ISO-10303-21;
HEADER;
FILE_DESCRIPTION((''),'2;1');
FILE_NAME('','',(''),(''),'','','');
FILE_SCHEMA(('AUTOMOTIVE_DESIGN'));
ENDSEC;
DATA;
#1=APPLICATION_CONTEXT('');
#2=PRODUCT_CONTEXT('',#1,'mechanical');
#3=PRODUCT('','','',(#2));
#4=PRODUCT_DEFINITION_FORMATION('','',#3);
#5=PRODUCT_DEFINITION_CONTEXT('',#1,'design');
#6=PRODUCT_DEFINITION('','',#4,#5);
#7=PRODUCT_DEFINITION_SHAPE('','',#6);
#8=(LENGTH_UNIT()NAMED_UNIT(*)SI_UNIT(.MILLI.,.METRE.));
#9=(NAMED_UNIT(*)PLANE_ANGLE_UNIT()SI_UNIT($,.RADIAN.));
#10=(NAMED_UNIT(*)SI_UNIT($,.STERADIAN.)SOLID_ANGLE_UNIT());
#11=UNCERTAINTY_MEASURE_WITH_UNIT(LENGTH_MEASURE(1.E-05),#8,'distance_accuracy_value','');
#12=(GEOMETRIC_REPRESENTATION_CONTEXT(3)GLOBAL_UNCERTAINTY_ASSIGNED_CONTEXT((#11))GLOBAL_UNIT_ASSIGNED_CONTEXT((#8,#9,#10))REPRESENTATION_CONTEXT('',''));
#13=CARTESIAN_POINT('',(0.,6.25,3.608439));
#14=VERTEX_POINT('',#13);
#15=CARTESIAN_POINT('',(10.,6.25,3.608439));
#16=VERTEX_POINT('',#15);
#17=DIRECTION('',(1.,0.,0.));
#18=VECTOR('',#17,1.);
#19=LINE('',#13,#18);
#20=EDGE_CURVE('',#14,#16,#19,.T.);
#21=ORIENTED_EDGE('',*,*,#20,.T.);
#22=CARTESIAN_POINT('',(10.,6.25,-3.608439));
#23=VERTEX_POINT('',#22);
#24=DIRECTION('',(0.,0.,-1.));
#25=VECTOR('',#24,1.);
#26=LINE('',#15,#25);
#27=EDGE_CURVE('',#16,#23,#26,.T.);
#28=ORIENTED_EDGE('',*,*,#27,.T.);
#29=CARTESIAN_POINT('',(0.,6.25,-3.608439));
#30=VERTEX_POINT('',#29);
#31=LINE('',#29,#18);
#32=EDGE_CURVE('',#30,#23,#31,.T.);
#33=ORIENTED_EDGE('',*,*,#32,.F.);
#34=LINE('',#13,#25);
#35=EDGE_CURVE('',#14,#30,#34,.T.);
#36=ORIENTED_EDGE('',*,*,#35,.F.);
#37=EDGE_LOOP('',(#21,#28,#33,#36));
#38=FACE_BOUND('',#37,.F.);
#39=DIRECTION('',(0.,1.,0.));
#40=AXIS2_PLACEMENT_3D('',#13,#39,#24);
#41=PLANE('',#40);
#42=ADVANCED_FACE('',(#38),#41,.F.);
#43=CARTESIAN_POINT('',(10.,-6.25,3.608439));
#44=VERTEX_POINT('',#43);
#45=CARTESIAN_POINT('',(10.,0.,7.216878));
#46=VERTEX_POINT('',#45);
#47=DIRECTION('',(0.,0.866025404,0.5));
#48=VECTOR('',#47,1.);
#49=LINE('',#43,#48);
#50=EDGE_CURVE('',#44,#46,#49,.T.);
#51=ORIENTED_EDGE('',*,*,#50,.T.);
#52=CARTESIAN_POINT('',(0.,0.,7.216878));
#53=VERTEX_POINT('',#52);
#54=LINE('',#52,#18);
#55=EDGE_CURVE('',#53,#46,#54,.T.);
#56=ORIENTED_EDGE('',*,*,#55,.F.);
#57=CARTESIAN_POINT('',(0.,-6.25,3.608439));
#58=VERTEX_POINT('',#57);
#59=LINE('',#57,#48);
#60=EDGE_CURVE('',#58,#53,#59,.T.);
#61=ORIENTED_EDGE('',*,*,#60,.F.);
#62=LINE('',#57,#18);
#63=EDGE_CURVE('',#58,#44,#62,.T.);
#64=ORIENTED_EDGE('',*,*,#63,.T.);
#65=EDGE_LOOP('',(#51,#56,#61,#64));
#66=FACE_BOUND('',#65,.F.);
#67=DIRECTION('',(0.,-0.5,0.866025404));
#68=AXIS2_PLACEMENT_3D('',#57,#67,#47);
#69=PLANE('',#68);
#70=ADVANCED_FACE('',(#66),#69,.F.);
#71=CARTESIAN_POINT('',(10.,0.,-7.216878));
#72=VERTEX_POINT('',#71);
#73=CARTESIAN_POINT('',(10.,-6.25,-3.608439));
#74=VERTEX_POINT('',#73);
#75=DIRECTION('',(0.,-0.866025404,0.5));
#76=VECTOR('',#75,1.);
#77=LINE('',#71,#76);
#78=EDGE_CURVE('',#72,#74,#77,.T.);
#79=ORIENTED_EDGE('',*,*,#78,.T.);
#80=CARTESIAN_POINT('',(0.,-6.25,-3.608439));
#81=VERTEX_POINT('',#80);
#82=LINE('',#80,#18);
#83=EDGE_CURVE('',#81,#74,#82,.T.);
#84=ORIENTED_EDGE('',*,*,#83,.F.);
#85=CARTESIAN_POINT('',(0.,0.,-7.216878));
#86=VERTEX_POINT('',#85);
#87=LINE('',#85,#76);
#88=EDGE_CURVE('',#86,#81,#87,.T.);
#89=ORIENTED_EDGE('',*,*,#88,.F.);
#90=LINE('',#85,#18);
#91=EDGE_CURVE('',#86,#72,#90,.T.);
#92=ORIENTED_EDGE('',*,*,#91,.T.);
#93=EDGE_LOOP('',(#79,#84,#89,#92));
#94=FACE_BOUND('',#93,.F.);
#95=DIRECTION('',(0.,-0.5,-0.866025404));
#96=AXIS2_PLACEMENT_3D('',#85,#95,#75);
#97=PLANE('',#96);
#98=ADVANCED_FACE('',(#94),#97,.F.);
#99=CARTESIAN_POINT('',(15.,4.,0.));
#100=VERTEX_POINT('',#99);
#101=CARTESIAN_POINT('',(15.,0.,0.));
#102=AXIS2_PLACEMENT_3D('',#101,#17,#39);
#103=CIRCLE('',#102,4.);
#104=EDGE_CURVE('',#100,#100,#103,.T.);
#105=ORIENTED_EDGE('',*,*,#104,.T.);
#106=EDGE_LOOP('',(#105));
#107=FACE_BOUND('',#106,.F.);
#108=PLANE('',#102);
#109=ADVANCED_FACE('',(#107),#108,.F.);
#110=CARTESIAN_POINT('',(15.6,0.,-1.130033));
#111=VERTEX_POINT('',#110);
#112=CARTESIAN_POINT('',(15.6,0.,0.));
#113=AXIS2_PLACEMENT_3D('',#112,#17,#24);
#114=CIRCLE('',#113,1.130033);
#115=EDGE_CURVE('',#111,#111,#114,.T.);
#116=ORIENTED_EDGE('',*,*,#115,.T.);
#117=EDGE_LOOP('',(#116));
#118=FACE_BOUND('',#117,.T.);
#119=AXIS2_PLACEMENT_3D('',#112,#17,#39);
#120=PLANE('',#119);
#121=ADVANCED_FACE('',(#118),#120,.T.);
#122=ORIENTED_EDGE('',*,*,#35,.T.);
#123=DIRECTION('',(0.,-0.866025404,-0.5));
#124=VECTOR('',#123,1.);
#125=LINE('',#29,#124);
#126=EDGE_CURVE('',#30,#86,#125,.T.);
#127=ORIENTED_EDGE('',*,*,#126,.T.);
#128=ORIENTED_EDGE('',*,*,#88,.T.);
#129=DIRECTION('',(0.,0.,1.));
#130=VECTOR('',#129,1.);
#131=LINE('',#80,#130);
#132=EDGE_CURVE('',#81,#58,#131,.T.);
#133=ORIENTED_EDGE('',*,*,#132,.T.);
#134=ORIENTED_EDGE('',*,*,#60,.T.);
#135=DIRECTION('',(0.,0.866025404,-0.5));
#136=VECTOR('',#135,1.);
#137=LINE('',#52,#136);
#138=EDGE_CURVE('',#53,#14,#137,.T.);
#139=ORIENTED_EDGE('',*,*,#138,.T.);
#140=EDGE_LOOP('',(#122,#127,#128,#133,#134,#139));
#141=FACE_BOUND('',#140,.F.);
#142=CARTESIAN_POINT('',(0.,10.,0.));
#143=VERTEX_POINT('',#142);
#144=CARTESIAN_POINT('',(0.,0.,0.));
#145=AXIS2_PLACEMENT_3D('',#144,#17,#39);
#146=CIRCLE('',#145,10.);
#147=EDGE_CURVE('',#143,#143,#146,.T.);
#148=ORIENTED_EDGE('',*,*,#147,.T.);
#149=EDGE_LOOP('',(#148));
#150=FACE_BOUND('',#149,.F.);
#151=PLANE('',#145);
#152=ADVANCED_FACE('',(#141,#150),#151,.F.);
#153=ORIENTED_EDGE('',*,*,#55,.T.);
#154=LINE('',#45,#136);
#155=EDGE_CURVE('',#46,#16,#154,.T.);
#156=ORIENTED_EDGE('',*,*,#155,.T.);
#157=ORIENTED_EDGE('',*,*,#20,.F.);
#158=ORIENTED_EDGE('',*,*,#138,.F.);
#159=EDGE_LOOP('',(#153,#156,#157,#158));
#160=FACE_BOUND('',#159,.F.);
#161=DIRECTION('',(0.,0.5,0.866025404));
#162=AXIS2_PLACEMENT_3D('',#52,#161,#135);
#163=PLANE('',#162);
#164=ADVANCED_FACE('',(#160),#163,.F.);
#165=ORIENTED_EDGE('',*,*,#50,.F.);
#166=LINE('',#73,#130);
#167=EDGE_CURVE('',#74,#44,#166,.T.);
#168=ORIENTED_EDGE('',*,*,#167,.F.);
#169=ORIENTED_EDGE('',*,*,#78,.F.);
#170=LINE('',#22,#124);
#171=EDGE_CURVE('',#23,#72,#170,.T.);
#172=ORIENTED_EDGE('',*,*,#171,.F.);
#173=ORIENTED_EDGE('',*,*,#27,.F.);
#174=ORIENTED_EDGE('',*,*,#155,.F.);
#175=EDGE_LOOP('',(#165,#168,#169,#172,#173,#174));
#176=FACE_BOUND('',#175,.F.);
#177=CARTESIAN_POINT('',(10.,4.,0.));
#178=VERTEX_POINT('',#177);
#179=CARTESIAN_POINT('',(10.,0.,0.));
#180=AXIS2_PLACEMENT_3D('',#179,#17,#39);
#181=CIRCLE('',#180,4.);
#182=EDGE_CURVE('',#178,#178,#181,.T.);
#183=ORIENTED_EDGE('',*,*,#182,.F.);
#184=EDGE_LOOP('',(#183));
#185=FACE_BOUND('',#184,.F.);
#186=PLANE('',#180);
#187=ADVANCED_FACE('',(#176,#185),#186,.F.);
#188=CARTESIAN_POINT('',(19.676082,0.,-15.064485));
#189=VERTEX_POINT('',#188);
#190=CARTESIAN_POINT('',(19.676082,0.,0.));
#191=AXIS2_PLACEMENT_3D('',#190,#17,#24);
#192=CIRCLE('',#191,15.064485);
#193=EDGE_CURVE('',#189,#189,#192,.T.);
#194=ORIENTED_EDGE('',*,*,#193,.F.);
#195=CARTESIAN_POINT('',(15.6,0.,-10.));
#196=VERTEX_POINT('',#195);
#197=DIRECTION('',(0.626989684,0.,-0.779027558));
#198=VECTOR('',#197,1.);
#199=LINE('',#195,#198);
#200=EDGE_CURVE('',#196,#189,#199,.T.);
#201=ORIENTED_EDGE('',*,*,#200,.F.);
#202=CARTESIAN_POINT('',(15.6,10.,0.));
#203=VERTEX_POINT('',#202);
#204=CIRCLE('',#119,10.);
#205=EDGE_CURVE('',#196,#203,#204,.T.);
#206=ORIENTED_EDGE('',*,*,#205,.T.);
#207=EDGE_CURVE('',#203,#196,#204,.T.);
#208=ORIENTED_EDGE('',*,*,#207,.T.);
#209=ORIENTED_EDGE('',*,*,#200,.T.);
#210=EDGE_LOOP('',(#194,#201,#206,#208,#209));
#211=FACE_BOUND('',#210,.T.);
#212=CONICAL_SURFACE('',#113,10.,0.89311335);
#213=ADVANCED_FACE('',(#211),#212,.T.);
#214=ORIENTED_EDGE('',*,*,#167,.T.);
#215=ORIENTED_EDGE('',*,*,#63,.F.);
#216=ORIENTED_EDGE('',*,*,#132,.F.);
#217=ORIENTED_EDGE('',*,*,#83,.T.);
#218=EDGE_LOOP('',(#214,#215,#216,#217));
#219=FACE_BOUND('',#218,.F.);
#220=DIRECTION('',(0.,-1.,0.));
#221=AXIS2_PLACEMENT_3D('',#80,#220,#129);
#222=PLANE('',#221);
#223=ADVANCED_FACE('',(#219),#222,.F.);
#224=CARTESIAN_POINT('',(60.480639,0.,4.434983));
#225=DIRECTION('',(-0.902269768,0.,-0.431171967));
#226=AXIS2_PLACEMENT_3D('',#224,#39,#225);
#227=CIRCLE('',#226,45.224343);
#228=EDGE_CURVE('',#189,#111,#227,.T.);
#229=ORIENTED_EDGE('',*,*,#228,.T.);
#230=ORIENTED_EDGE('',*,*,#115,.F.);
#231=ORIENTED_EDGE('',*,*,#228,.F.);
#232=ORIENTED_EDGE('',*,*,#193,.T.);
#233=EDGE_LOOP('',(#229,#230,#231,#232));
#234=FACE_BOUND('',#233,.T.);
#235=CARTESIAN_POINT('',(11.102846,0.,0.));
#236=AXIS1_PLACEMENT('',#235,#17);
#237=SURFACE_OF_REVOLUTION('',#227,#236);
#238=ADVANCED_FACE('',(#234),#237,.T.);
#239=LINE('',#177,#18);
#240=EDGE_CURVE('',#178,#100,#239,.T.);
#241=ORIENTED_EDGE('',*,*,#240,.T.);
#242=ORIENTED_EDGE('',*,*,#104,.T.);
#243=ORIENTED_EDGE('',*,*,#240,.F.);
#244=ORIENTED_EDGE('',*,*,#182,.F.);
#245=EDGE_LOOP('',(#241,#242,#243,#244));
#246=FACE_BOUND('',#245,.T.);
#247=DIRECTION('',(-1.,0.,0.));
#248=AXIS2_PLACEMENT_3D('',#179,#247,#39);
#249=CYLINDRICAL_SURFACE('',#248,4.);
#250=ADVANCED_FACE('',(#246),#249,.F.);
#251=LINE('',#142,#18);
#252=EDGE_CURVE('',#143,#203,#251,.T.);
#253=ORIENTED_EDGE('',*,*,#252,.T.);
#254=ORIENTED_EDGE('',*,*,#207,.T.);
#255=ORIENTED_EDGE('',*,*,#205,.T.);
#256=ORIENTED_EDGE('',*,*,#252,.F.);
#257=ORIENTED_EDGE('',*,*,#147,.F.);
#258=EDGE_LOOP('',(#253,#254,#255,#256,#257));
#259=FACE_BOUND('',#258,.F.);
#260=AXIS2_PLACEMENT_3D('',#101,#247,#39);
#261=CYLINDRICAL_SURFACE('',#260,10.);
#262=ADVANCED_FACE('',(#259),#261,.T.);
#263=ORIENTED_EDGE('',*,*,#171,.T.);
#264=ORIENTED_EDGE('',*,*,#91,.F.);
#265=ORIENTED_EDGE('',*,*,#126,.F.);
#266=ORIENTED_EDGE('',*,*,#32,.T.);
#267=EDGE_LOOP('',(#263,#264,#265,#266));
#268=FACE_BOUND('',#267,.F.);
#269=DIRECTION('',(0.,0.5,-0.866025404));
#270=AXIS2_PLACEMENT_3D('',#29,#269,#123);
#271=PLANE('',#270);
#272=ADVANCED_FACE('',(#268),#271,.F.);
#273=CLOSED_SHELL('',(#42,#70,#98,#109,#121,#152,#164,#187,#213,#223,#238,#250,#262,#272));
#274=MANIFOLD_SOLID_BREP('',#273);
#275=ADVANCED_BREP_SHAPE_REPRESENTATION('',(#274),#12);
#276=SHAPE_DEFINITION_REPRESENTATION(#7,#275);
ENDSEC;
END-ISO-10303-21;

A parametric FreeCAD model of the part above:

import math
import FreeCAD as App
import Part
import Sketcher

V = App.Vector
Q = App.Units.Quantity


def add_polygon(sketch, points):
    """Adds a closed chain of lines whose ends are joined by coincident constraints."""
    first, n = sketch.GeometryCount, len(points)
    for a, b in zip(points, points[1:] + points[:1]):
        sketch.addGeometry(Part.LineSegment(App.Vector(*a, 0), App.Vector(*b, 0)), False)
    for i in range(n):
        sketch.addConstraint(Sketcher.Constraint("Coincident", first + i, 2, first + (i + 1) % n, 1))

doc = App.newDocument("Part")
body = doc.addObject("PartDesign::Body", "Body")

# Sketch on YZ plane
sketch1 = body.newObject("Sketcher::SketchObject", "Sketch")
sketch1.AttachmentSupport = (doc.getObject("YZ_Plane"), [""])
sketch1.MapMode = "FlatFace"
sketch1.addGeometry(Part.Circle(V(0, 0, 0), V(0, 0, 1), 10), False)  # 0
add_polygon(sketch1, [(-6, 4), (0, 7), (6, 4), (6, -4), (0, -7), (-6, -4)])  # lines 1-6
sketch1.addConstraint([
    Sketcher.Constraint("Vertical", 3),
    Sketcher.Constraint("Vertical", 6),
    Sketcher.Constraint("Coincident", 0, 3, -1, 1),
    Sketcher.Constraint("Symmetric", 1, 2, 4, 2, -1, 1),
    Sketcher.Constraint("Symmetric", 2, 2, 5, 2, -1, 1),
    Sketcher.Constraint("PointOnObject", 1, 2, -2),
    Sketcher.Constraint("Parallel", 1, 4),
    Sketcher.Constraint("Horizontal", 3, 2, 5, 2),
    Sketcher.Constraint("Diameter", 0, Q("20 mm")),
    Sketcher.Constraint("Angle", 1, Q("30 deg")),
    Sketcher.Constraint("DistanceX", 5, 2, 3, 2, Q("12.5 mm")),
    Sketcher.Constraint("DistanceY", 3, 2, 3, 1, Q("7.216878 mm")),
])
pad1 = body.newObject("PartDesign::Pad", "Pad")
pad1.Profile = sketch1
pad1.Length = 10

# Sketch on YZ plane
sketch2 = body.newObject("Sketcher::SketchObject", "Sketch001")
sketch2.AttachmentSupport = (doc.getObject("YZ_Plane"), [""])
sketch2.MapMode = "FlatFace"
sketch2.AttachmentOffset = App.Placement(V(0, 0, 10), App.Rotation())
sketch2.addGeometry([
    Part.Circle(V(0, 0, 0), V(0, 0, 1), 10),
    Part.Circle(V(0, 0, 0), V(0, 0, 1), 4),
], False)
sketch2.addConstraint([
    Sketcher.Constraint("Coincident", 0, 3, -1, 1),
    Sketcher.Constraint("Coincident", 1, 3, -1, 1),
    Sketcher.Constraint("Diameter", 0, Q("20 mm")),
    Sketcher.Constraint("Diameter", 1, Q("8 mm")),
])
pad2 = body.newObject("PartDesign::Pad", "Pad001")
pad2.Profile = sketch2
pad2.Length = 5

# Sketch on YZ plane
sketch3 = body.newObject("Sketcher::SketchObject", "Sketch002")
sketch3.AttachmentSupport = (doc.getObject("YZ_Plane"), [""])
sketch3.MapMode = "FlatFace"
sketch3.AttachmentOffset = App.Placement(V(0, 0, 15), App.Rotation())
sketch3.addGeometry(Part.Circle(V(0, 0, 0), V(0, 0, 1), 10), False)
sketch3.addConstraint([
    Sketcher.Constraint("Coincident", 0, 3, -1, 1),
    Sketcher.Constraint("Diameter", 0, Q("20 mm")),
])
pad3 = body.newObject("PartDesign::Pad", "Pad002")
pad3.Profile = sketch3
pad3.Length = 0.6

# Sketch on XZ plane
sketch4 = body.newObject("Sketcher::SketchObject", "Sketch003")
sketch4.AttachmentSupport = (doc.getObject("XZ_Plane"), [""])
sketch4.MapMode = "FlatFace"
sketch4.addGeometry([
    Part.ArcOfCircle(Part.Circle(V(60, 4, 0), V(0, 0, 1), 45), math.radians(-172.93), math.radians(-154.46)),
    Part.LineSegment(V(16, -1, 0), V(16, -10, 0)),
    Part.LineSegment(V(16, -10, 0), V(20, -15, 0)),
], False)
sketch4.addConstraint([
    Sketcher.Constraint("Coincident", 0, 1, 1, 1),
    Sketcher.Constraint("Coincident", 1, 2, 2, 1),
    Sketcher.Constraint("Coincident", 2, 2, 0, 2),
    Sketcher.Constraint("Vertical", 1),
    Sketcher.Constraint("DistanceY", 1, 2, -1, 1, Q("10 mm")),
    Sketcher.Constraint("DistanceX", -1, 1, 0, 1, Q("15.6 mm")),
    Sketcher.Constraint("Radius", 0, Q("45.224343 mm")),
    Sketcher.Constraint("DistanceY", 1, 2, 1, 1, Q("8.869967 mm")),
    Sketcher.Constraint("DistanceX", -1, 1, 0, 3, Q("60.480639 mm")),
    Sketcher.Constraint("DistanceX", -1, 1, 2, 2, Q("19.676082 mm")),
])
revolution = body.newObject("PartDesign::Revolution", "Revolution")
revolution.Profile = sketch4
revolution.ReferenceAxis = (sketch4, ["H_Axis"])
revolution.Angle = 360

doc.recompute()
